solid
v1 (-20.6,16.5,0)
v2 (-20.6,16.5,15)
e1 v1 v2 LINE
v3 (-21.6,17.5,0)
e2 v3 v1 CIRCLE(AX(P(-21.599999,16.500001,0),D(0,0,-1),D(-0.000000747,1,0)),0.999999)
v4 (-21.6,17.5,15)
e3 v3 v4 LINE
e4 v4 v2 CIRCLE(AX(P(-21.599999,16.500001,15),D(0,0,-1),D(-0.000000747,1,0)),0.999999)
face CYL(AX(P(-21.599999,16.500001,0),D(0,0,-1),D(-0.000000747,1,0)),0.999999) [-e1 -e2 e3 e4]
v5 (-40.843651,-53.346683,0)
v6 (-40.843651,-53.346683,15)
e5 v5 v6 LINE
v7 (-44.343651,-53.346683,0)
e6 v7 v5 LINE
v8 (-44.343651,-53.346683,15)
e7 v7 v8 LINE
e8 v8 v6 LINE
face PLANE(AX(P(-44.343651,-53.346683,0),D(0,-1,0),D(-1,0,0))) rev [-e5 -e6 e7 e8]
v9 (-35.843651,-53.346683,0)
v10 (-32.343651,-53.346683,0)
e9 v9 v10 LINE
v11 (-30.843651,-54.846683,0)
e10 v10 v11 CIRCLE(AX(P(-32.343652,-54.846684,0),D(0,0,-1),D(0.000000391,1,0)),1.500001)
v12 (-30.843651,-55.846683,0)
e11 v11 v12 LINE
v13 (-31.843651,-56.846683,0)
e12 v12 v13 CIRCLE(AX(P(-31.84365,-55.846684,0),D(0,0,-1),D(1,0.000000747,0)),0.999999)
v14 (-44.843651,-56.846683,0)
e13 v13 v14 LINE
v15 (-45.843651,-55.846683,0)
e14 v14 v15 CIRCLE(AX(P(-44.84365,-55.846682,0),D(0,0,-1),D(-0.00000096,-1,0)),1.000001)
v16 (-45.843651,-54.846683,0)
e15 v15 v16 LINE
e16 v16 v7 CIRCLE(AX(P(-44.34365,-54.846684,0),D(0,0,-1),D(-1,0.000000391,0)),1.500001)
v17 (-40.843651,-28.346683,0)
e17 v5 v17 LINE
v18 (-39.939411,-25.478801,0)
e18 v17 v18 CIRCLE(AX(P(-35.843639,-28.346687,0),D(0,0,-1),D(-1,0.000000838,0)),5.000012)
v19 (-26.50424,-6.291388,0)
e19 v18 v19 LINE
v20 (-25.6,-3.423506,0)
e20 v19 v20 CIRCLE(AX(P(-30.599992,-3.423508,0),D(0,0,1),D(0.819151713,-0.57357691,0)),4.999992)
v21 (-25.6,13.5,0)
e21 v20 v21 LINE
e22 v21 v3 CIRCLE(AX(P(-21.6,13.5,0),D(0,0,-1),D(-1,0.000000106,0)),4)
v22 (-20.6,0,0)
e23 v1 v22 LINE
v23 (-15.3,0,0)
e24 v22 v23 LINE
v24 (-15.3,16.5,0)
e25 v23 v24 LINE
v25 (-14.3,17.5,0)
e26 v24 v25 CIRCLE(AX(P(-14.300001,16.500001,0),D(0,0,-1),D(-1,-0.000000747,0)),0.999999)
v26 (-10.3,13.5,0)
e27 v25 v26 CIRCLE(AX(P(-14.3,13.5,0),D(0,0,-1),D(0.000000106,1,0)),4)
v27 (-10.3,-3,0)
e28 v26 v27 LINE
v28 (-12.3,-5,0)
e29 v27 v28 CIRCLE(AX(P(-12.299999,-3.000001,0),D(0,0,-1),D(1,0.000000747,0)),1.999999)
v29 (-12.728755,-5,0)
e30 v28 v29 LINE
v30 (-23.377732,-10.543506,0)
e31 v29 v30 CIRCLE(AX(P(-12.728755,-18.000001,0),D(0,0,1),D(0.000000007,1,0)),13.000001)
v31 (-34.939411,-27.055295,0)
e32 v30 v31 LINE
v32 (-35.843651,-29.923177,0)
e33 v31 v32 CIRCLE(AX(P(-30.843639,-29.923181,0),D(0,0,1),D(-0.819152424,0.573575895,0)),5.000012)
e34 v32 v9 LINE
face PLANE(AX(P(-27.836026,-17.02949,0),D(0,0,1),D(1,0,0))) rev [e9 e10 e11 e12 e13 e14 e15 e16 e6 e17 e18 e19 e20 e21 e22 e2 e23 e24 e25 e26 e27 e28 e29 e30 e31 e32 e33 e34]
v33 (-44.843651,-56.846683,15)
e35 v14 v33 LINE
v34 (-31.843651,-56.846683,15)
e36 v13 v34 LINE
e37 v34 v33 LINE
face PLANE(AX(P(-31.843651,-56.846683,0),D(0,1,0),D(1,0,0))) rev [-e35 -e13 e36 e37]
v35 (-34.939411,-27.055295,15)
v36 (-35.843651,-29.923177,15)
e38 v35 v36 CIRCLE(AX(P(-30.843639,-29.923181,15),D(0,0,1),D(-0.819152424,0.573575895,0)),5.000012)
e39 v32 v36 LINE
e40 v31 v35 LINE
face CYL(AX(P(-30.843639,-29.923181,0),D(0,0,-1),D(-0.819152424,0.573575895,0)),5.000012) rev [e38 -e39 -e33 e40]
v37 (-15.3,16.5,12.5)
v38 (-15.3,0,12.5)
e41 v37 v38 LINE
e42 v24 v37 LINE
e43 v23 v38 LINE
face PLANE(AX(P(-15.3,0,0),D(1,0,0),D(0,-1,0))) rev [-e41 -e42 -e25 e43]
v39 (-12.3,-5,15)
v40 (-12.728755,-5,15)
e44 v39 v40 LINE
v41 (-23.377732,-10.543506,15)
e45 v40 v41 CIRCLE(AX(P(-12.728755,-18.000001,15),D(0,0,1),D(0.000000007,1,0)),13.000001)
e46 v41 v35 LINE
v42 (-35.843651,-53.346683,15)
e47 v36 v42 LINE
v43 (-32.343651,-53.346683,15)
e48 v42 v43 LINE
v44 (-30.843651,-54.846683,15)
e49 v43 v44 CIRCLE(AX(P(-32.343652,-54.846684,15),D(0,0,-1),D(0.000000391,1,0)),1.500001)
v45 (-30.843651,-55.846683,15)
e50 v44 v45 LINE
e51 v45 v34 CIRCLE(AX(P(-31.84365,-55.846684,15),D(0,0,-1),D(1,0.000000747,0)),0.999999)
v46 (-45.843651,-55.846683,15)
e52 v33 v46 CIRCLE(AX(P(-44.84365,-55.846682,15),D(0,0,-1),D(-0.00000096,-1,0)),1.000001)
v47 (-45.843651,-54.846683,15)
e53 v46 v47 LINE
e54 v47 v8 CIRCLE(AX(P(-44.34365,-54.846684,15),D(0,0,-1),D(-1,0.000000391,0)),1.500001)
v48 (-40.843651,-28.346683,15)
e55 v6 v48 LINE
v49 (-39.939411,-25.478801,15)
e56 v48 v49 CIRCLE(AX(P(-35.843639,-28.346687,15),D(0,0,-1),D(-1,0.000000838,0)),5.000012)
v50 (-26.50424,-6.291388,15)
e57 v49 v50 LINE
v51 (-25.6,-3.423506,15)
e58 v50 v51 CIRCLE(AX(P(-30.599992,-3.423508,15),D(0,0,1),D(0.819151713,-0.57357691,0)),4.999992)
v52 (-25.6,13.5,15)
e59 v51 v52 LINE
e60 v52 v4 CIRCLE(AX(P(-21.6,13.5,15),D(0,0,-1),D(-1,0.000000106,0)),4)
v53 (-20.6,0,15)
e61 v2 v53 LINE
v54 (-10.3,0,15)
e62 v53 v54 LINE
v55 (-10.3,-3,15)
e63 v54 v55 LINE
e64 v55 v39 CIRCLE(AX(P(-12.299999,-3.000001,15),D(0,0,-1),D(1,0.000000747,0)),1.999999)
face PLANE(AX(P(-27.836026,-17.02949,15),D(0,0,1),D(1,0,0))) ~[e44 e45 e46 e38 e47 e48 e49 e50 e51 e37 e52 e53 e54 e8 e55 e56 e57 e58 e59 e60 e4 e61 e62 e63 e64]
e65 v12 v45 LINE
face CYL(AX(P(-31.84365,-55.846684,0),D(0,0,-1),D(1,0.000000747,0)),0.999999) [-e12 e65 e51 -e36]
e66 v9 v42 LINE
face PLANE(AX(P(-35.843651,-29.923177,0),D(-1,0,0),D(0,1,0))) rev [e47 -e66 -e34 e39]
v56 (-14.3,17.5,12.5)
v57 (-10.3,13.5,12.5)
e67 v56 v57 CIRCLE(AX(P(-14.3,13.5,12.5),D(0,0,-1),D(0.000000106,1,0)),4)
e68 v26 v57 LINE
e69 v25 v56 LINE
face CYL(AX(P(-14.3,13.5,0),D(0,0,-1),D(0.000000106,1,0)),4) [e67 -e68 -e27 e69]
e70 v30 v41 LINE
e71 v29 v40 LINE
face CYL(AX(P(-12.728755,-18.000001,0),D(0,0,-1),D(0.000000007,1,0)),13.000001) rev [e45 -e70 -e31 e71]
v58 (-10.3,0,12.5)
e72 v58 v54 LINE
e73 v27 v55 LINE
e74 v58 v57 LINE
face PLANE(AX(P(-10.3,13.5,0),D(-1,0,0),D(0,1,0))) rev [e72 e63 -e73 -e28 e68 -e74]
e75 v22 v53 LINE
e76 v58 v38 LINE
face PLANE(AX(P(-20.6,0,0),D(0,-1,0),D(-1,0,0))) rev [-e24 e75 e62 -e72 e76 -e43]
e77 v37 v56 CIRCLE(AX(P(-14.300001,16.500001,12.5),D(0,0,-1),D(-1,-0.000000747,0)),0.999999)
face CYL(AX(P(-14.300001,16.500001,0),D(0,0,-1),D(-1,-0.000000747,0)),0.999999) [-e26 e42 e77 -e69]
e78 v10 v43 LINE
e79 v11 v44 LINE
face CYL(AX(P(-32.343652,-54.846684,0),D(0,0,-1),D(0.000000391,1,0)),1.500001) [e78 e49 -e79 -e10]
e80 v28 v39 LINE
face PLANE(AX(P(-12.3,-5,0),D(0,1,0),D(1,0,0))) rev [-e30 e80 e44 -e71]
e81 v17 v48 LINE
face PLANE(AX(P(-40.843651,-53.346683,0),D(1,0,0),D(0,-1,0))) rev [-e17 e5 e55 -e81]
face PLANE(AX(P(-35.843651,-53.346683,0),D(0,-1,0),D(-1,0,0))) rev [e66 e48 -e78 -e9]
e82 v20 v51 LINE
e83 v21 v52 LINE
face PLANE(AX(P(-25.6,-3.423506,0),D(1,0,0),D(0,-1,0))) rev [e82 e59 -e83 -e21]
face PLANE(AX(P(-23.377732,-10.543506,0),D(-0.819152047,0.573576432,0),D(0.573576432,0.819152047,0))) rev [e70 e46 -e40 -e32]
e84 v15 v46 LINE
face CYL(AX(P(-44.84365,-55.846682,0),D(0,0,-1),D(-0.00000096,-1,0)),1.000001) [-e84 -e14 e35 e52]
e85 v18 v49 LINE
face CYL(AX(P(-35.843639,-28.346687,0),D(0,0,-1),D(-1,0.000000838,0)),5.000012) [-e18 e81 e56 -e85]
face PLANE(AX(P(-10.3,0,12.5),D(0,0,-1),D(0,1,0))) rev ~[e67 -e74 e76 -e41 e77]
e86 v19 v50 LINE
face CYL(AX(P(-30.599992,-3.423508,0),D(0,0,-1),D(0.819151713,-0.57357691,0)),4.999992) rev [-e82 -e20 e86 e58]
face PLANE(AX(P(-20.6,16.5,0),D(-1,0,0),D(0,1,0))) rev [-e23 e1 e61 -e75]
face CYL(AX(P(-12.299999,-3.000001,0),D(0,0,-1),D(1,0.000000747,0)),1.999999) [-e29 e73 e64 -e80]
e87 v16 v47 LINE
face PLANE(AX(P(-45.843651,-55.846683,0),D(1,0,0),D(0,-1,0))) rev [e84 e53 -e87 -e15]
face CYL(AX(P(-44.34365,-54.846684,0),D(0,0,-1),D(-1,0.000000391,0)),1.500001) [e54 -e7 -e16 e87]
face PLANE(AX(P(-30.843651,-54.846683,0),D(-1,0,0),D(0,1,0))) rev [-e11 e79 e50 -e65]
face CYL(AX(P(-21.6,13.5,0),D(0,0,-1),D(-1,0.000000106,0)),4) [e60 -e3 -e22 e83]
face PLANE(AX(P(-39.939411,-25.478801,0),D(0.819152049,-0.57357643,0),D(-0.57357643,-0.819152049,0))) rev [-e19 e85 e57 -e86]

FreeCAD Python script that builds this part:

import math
import FreeCAD as App
import Part
import Sketcher

V = App.Vector
Q = App.Units.Quantity


def add_polygon(sketch, points):
    """Adds a closed chain of lines whose ends are joined by coincident constraints."""
    first, n = sketch.GeometryCount, len(points)
    for a, b in zip(points, points[1:] + points[:1]):
        sketch.addGeometry(Part.LineSegment(App.Vector(*a, 0), App.Vector(*b, 0)), False)
    for i in range(n):
        sketch.addConstraint(Sketcher.Constraint("Coincident", first + i, 2, first + (i + 1) % n, 1))

doc = App.newDocument("Part")
params = doc.addObject("Spreadsheet::Sheet", "Params")
for row, (alias, value) in enumerate([
    ("sketch1_radius", "0.999999 mm"),
    ("sketch1_radius2", "4 mm"),
    ("sketch1_radius3", "1.999999 mm"),
    ("sketch1_radius4", "13.000001 mm"),
    ("sketch1_radius5", "1.500001 mm"),
    ("pad1_length", "15 mm"),
    ("sketch2_width", "17.5 mm"),
    ("sketch2_height", "2.5 mm"),
    ("pocket1_length", "5.7 mm"),
], start=1):
    params.set(f"A{row}", alias)
    params.set(f"B{row}", "=" + value)
    params.setAlias(f"B{row}", alias)

body = doc.addObject("PartDesign::Body", "Body")

# Sketch on XY plane
sketch1 = body.newObject("Sketcher::SketchObject", "Sketch")
sketch1.AttachmentSupport = (doc.getObject("XY_Plane"), [""])
sketch1.MapMode = "FlatFace"
sketch1.addGeometry([
    Part.LineSegment(V(0, 16.5, 0), V(0, 0, 0)),  # 0
    Part.LineSegment(V(0, 0, 0), V(-5.3, 0, 0)),  # 1
    Part.LineSegment(V(-5.3, 0, 0), V(-5.3, 16.5, 0)),  # 2
    Part.ArcOfCircle(Part.Circle(V(-6.299999, 16.500001, 0), V(0, 0, 1), 0.999999), math.radians(-0.000043), math.radians(90.000043)),  # 3
    Part.ArcOfCircle(Part.Circle(V(-6.3, 13.5, 0), V(0, 0, 1), 4), math.radians(90.000006), math.radians(179.999994)),  # 4
    Part.LineSegment(V(-10.3, 13.5, 0), V(-10.3, -3, 0)),  # 5
    Part.ArcOfCircle(Part.Circle(V(-8.300001, -3.000001, 0), V(0, 0, 1), 1.999999), math.radians(179.999957), math.radians(270.000043)),  # 6
    Part.LineSegment(V(-8.3, -5, 0), V(-7.871245, -5, 0)),  # 7
    Part.ArcOfCircle(Part.Circle(V(-7.871245, -18.000001, 0), V(0, 0, 1), 13.000001), math.radians(35.000004), math.radians(90)),  # 8
    Part.LineSegment(V(2.777732, -10.543506, 0), V(14.339411, -27.055295, 0)),  # 9
    Part.ArcOfCircle(Part.Circle(V(10.243639, -29.923181, 0), V(0, 0, 1), 5.000012), math.radians(0.000048), math.radians(34.999962)),  # 10
    Part.LineSegment(V(15.243651, -29.923177, 0), V(15.243651, -53.346683, 0)),  # 11
    Part.LineSegment(V(15.243651, -53.346683, 0), V(11.743651, -53.346683, 0)),  # 12
    Part.ArcOfCircle(Part.Circle(V(11.743652, -54.846684, 0), V(0, 0, 1), 1.500001), math.radians(90.000022), math.radians(179.999978)),  # 13
    Part.LineSegment(V(10.243651, -54.846683, 0), V(10.243651, -55.846683, 0)),  # 14
    Part.ArcOfCircle(Part.Circle(V(11.24365, -55.846684, 0), V(0, 0, 1), 0.999999), math.radians(179.999957), math.radians(270.000043)),  # 15
    Part.LineSegment(V(11.243651, -56.846683, 0), V(24.243651, -56.846683, 0)),  # 16
    Part.ArcOfCircle(Part.Circle(V(24.24365, -55.846682, 0), V(0, 0, 1), 1.000001), math.radians(-89.999945), math.radians(-0.000055)),  # 17
    Part.LineSegment(V(25.243651, -55.846683, 0), V(25.243651, -54.846683, 0)),  # 18
    Part.ArcOfCircle(Part.Circle(V(23.74365, -54.846684, 0), V(0, 0, 1), 1.500001), math.radians(0.000022), math.radians(89.999978)),  # 19
    Part.LineSegment(V(23.743651, -53.346683, 0), V(20.243651, -53.346683, 0)),  # 20
    Part.LineSegment(V(20.243651, -53.346683, 0), V(20.243651, -28.346683, 0)),  # 21
    Part.ArcOfCircle(Part.Circle(V(15.243639, -28.346687, 0), V(0, 0, 1), 5.000012), math.radians(0.000048), math.radians(34.999962)),  # 22
    Part.LineSegment(V(19.339411, -25.478801, 0), V(5.90424, -6.291388, 0)),  # 23
    Part.ArcOfCircle(Part.Circle(V(9.999992, -3.423508, 0), V(0, 0, 1), 4.999992), math.radians(179.999977), math.radians(215.000033)),  # 24
    Part.LineSegment(V(5, -3.423506, 0), V(5, 13.5, 0)),  # 25
    Part.ArcOfCircle(Part.Circle(V(1, 13.5, 0), V(0, 0, 1), 4), math.radians(0.000006), math.radians(89.999994)),  # 26
    Part.ArcOfCircle(Part.Circle(V(0.999999, 16.500001, 0), V(0, 0, 1), 0.999999), math.radians(89.999957), math.radians(180.000043)),  # 27
], False)
sketch1.addConstraint([
    Sketcher.Constraint("Coincident", 0, 2, 1, 1),
    Sketcher.Constraint("Coincident", 1, 2, 2, 1),
    Sketcher.Constraint("Tangent", 2, 2, 3, 1),
    Sketcher.Constraint("Tangent", 3, 2, 4, 1),
    Sketcher.Constraint("Tangent", 4, 2, 5, 1),
    Sketcher.Constraint("Tangent", 5, 2, 6, 1),
    Sketcher.Constraint("Tangent", 6, 2, 7, 1),
    Sketcher.Constraint("Tangent", 7, 2, 8, 2),
    Sketcher.Constraint("Tangent", 8, 1, 9, 1),
    Sketcher.Constraint("Tangent", 9, 2, 10, 2),
    Sketcher.Constraint("Tangent", 10, 1, 11, 1),
    Sketcher.Constraint("Coincident", 11, 2, 12, 1),
    Sketcher.Constraint("Tangent", 12, 2, 13, 1),
    Sketcher.Constraint("Tangent", 13, 2, 14, 1),
    Sketcher.Constraint("Tangent", 14, 2, 15, 1),
    Sketcher.Constraint("Tangent", 15, 2, 16, 1),
    Sketcher.Constraint("Tangent", 16, 2, 17, 1),
    Sketcher.Constraint("Tangent", 17, 2, 18, 1),
    Sketcher.Constraint("Tangent", 18, 2, 19, 1),
    Sketcher.Constraint("Tangent", 19, 2, 20, 1),
    Sketcher.Constraint("Coincident", 20, 2, 21, 1),
    Sketcher.Constraint("Tangent", 21, 2, 22, 1),
    Sketcher.Constraint("Tangent", 22, 2, 23, 1),
    Sketcher.Constraint("Tangent", 23, 2, 24, 2),
    Sketcher.Constraint("Tangent", 24, 1, 25, 1),
    Sketcher.Constraint("Tangent", 25, 2, 26, 1),
    Sketcher.Constraint("Tangent", 26, 2, 27, 1),
    Sketcher.Constraint("Tangent", 27, 2, 0, 1),
    Sketcher.Constraint("Vertical", 0),
    Sketcher.Constraint("Horizontal", 1),
    Sketcher.Constraint("Vertical", 2),
    Sketcher.Constraint("Vertical", 5),
    Sketcher.Constraint("Horizontal", 7),
    Sketcher.Constraint("Vertical", 11),
    Sketcher.Constraint("Horizontal", 12),
    Sketcher.Constraint("Vertical", 14),
    Sketcher.Constraint("Horizontal", 16),
    Sketcher.Constraint("Vertical", 18),
    Sketcher.Constraint("Horizontal", 20),
    Sketcher.Constraint("Vertical", 21),
    Sketcher.Constraint("Vertical", 25),
    Sketcher.Constraint("Coincident", 0, 2, -1, 1),
    Sketcher.Constraint("Equal", 3, 15),
    Sketcher.Constraint("Equal", 15, 17),
    Sketcher.Constraint("Equal", 13, 19),
    Sketcher.Constraint("Equal", 10, 22),
    Sketcher.Constraint("Equal", 4, 26),
    Sketcher.Constraint("Equal", 17, 27),
    Sketcher.Constraint("Parallel", 9, 23),
    Sketcher.Constraint("Horizontal", 13, 3, 19, 3),
    Sketcher.Constraint("Horizontal", 4, 3, 26, 3),
    Sketcher.Constraint("Vertical", 3, 3, 4, 3),
    Sketcher.Constraint("Vertical", 26, 3, 27, 3),
    Sketcher.Constraint("Equal", 12, 20),
    Sketcher.Constraint("Equal", 2, 5),
    Sketcher.Constraint("Radius", 3, 0.999999),
    Sketcher.Constraint("Radius", 4, 4.0),
    Sketcher.Constraint("Radius", 6, 1.999999),
    Sketcher.Constraint("Radius", 8, 13.000001),
    Sketcher.Constraint("Radius", 13, 1.500001),
    Sketcher.Constraint("DistanceX", 16, 1, 16, 2, 13.0),
    Sketcher.Constraint("DistanceY", 14, 2, 14, 1, 1.0),
    Sketcher.Constraint("DistanceY", 21, 1, 21, 2, 25.0),
    Sketcher.Constraint("Angle", 9, Q("-55 deg")),
    Sketcher.Constraint("DistanceX", 1, 2, 1, 1, 5.3),
    Sketcher.Constraint("DistanceX", 12, 2, 12, 1, 3.5),
    Sketcher.Constraint("DistanceY", 0, 2, 0, 1, 16.5),
    Sketcher.Constraint("Radius", 10, 5.000012),
    Sketcher.Constraint("DistanceY", 8, 1, 24, 1, 7.12),
    Sketcher.Constraint("Radius", 24, 4.999992),
    Sketcher.Constraint("DistanceY", 22, 2, -1, 1, 25.478801),
    Sketcher.Constraint("DistanceY", 17, 3, 10, 3, 25.923501),
])
sketch1.setExpression("Constraints[55]", "Params.sketch1_radius")
sketch1.setExpression("Constraints[56]", "Params.sketch1_radius2")
sketch1.setExpression("Constraints[57]", "Params.sketch1_radius3")
sketch1.setExpression("Constraints[58]", "Params.sketch1_radius4")
sketch1.setExpression("Constraints[59]", "Params.sketch1_radius5")
pad1 = body.newObject("PartDesign::Pad", "Pad")
pad1.Profile = sketch1
pad1.setExpression("Length", "Params.pad1_length")
body2 = doc.addObject("PartDesign::Body", "Body001")
doc.recompute()

mirroring = doc.addObject("Part::Mirroring", "Mirroring")
mirroring.Source = body
mirroring.Base = V(-10.3, 5.25, 7.5)
mirroring.Normal = V(-1, 0, 0)
body2.BaseFeature = mirroring
doc.recompute()

# Sketch on YZ plane
sketch2 = body2.newObject("Sketcher::SketchObject", "Sketch001")
sketch2.AttachmentSupport = (doc.getObject("YZ_Plane001"), [""])
sketch2.MapMode = "FlatFace"
sketch2.AttachmentOffset = App.Placement(V(0, 0, -10.3), App.Rotation())
add_polygon(sketch2, [(0, 15), (0, 12.5), (17.5, 12.5), (17.5, 15)])  # lines 0-3
sketch2.addConstraint([
    Sketcher.Constraint("Vertical", 0),
    Sketcher.Constraint("Horizontal", 1),
    Sketcher.Constraint("Vertical", 2),
    Sketcher.Constraint("Horizontal", 3),
    Sketcher.Constraint("PointOnObject", 0, 2, -2),
    Sketcher.Constraint("DistanceX", 1, 1, 1, 2, 17.5),
    Sketcher.Constraint("DistanceY", 0, 2, 0, 1, 2.5),
    Sketcher.Constraint("DistanceY", -1, 1, 2, 2, 15.0),
])
sketch2.setExpression("Constraints[9]", "Params.sketch2_width")
sketch2.setExpression("Constraints[10]", "Params.sketch2_height")
pocket1 = body2.newObject("PartDesign::Pocket", "Pocket")
pocket1.Profile = sketch2
pocket1.setExpression("Length", "Params.pocket1_length")
body.Visibility = False
mirroring.Visibility = False

doc.recompute()
